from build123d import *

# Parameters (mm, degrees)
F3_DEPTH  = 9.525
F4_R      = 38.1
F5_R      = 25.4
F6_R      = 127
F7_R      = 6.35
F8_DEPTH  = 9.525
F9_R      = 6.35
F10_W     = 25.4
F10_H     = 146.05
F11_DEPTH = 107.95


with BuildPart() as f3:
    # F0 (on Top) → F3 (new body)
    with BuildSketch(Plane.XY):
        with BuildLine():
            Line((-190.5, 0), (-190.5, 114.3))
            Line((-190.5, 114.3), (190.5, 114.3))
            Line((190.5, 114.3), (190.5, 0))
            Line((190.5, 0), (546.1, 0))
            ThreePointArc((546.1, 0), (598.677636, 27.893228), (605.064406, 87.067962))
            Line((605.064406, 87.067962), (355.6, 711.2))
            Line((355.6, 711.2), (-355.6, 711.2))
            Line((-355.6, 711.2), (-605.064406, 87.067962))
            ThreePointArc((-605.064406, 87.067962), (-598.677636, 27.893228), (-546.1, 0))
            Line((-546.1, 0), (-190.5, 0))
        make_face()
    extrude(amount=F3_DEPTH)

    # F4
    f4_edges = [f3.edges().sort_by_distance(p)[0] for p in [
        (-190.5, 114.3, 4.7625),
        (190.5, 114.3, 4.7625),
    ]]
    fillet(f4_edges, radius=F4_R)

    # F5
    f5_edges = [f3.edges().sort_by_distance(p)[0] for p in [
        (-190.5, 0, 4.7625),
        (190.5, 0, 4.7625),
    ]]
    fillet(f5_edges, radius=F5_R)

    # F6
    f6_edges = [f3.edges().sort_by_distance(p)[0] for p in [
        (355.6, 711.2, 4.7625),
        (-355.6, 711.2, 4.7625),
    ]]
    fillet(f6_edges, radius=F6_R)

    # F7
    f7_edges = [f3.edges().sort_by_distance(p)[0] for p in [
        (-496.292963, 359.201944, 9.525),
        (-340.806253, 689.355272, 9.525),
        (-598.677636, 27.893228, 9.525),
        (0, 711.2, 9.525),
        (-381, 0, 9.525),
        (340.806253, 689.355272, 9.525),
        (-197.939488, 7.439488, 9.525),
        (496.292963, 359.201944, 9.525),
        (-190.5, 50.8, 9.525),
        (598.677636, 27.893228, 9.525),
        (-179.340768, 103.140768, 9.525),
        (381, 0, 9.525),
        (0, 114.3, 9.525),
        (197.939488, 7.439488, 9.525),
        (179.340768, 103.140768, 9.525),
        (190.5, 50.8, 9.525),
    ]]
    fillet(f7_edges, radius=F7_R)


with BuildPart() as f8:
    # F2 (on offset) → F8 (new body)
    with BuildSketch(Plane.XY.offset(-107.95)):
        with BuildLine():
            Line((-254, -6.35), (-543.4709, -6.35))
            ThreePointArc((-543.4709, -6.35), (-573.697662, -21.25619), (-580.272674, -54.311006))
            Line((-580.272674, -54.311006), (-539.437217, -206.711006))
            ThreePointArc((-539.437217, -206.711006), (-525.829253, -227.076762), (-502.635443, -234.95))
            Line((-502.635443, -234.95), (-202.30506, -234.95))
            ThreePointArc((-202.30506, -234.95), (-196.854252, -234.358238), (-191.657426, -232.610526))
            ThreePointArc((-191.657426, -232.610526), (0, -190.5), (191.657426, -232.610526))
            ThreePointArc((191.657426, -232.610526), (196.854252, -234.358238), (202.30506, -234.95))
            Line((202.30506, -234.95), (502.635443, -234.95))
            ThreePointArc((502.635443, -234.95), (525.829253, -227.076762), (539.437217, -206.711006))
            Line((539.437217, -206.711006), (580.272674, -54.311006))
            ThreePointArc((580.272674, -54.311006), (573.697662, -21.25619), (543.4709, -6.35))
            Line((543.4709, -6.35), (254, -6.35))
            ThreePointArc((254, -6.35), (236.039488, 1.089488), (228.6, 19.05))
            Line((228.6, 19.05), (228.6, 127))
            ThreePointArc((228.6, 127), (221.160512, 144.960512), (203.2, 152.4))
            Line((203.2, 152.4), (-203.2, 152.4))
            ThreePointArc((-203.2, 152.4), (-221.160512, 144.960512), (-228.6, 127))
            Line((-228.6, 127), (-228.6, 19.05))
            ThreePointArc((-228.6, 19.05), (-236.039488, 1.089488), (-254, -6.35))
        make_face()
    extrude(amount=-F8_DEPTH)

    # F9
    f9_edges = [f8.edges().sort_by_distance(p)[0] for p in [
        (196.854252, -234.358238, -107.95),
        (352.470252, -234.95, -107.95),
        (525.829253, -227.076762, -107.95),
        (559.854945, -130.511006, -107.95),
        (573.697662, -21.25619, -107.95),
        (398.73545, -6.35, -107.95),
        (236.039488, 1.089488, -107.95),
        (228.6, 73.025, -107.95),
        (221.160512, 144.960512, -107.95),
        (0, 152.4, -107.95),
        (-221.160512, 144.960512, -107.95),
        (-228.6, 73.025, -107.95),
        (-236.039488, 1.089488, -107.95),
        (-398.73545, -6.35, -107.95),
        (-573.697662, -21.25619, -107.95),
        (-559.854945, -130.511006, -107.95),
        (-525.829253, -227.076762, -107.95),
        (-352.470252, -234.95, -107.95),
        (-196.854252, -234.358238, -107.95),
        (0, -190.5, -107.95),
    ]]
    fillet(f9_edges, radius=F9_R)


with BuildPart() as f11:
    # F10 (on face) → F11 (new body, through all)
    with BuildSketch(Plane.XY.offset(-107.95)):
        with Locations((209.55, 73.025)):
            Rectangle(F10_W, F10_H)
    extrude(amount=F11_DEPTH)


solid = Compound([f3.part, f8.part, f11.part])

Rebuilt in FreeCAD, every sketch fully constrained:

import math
import FreeCAD as App
import Part
import Sketcher
Q = App.Units.Quantity


def edges_at(feature, points):
    """Names of the edges that pass closest to the given points."""
    edges = feature.Shape.Edges
    near = lambda p: min(range(len(edges)), key=lambda i: edges[i].distToShape(Part.Vertex(*p))[0])
    return sorted({f"Edge{near(p) + 1}" for p in points})

doc = App.newDocument("Part")
body = doc.addObject("PartDesign::Body", "Body")

# Sketch on XY plane
sketch1 = body.newObject("Sketcher::SketchObject", "Sketch")
sketch1.AttachmentSupport = (doc.getObject("XY_Plane"), [""])
sketch1.MapMode = "FlatFace"
sketch1.addGeometry(Part.LineSegment(App.Vector(-190.5, 0, 0), App.Vector(-190.5, 114.3, 0)), False)
sketch1.addGeometry(Part.LineSegment(App.Vector(-190.5, 114.3, 0), App.Vector(190.5, 114.3, 0)), False)
sketch1.addGeometry(Part.LineSegment(App.Vector(190.5, 114.3, 0), App.Vector(190.5, 0, 0)), False)
sketch1.addGeometry(Part.LineSegment(App.Vector(190.5, 0, 0), App.Vector(546.1, 0, 0)), False)
sketch1.addGeometry(Part.ArcOfCircle(Part.Circle(App.Vector(546.1, 63.5, 0), App.Vector(0, 0, 1), 63.5), math.radians(-90), math.radians(21.786497)), False)
sketch1.addGeometry(Part.LineSegment(App.Vector(605.064406, 87.067962, 0), App.Vector(355.6, 711.2, 0)), False)
sketch1.addGeometry(Part.LineSegment(App.Vector(355.6, 711.2, 0), App.Vector(-355.6, 711.2, 0)), False)
sketch1.addGeometry(Part.LineSegment(App.Vector(-355.6, 711.2, 0), App.Vector(-605.064406, 87.067962, 0)), False)
sketch1.addGeometry(Part.ArcOfCircle(Part.Circle(App.Vector(-546.1, 63.5, 0), App.Vector(0, 0, 1), 63.5), math.radians(158.213503), math.radians(270)), False)
sketch1.addGeometry(Part.LineSegment(App.Vector(-546.1, 0, 0), App.Vector(-190.5, 0, 0)), False)
sketch1.addConstraint(Sketcher.Constraint("Coincident", 0, 2, 1, 1))
sketch1.addConstraint(Sketcher.Constraint("Coincident", 1, 2, 2, 1))
sketch1.addConstraint(Sketcher.Constraint("Coincident", 2, 2, 3, 1))
sketch1.addConstraint(Sketcher.Constraint("Tangent", 3, 2, 4, 1))
sketch1.addConstraint(Sketcher.Constraint("Tangent", 4, 2, 5, 1))
sketch1.addConstraint(Sketcher.Constraint("Coincident", 5, 2, 6, 1))
sketch1.addConstraint(Sketcher.Constraint("Coincident", 6, 2, 7, 1))
sketch1.addConstraint(Sketcher.Constraint("Tangent", 7, 2, 8, 1))
sketch1.addConstraint(Sketcher.Constraint("Tangent", 8, 2, 9, 1))
sketch1.addConstraint(Sketcher.Constraint("Coincident", 9, 2, 0, 1))
sketch1.addConstraint(Sketcher.Constraint("Vertical", 0))
sketch1.addConstraint(Sketcher.Constraint("Horizontal", 1))
sketch1.addConstraint(Sketcher.Constraint("Vertical", 2))
sketch1.addConstraint(Sketcher.Constraint("Horizontal", 3))
sketch1.addConstraint(Sketcher.Constraint("Horizontal", 6))
sketch1.addConstraint(Sketcher.Constraint("Horizontal", 9))
sketch1.addConstraint(Sketcher.Constraint("Equal", 4, 8))
sketch1.addConstraint(Sketcher.Constraint("Symmetric", 3, 2, 8, 2, -1, 1))
sketch1.addConstraint(Sketcher.Constraint("Symmetric", 2, 2, 9, 2, -2))
sketch1.addConstraint(Sketcher.Constraint("Equal", 5, 7))
sketch1.addConstraint(Sketcher.Constraint("Radius", 4, Q("2.5 in")))
sketch1.addConstraint(Sketcher.Constraint("DistanceX", 1, 1, 1, 2, Q("15 in")))
sketch1.addConstraint(Sketcher.Constraint("DistanceX", 3, 1, 3, 2, Q("14 in")))
sketch1.addConstraint(Sketcher.Constraint("DistanceX", 6, 2, 6, 1, Q("28 in")))
sketch1.addConstraint(Sketcher.Constraint("DistanceY", 0, 1, 0, 2, Q("4.5 in")))
sketch1.addConstraint(Sketcher.Constraint("DistanceY", -1, 1, 5, 2, Q("28 in")))
pad1 = body.newObject("PartDesign::Pad", "Pad")
pad1.Profile = sketch1
pad1.Length = Q("0.375 in")
doc.recompute()

fillet = body.newObject("PartDesign::Fillet", "Fillet")
fillet.Base = (pad1, edges_at(pad1, [(-190.5, 114.3, 4.763), (190.5, 114.3, 4.763)]))
fillet.Radius = Q("1.5 in")
doc.recompute()

fillet2 = body.newObject("PartDesign::Fillet", "Fillet001")
fillet2.Base = (fillet, edges_at(fillet, [(-190.5, 0, 4.763), (190.5, 0, 4.763)]))
fillet2.Radius = Q("1 in")
doc.recompute()

fillet3 = body.newObject("PartDesign::Fillet", "Fillet002")
fillet3.Base = (fillet2, edges_at(fillet2, [(355.6, 711.2, 4.763), (-355.6, 711.2, 4.763)]))
fillet3.Radius = Q("5 in")
doc.recompute()

fillet4 = body.newObject("PartDesign::Fillet", "Fillet003")
fillet4.Base = (fillet3, edges_at(fillet3, [
    (-496.293, 359.202, 9.525),
    (-340.806, 689.355, 9.525),
    (-598.678, 27.893, 9.525),
    (0, 711.2, 9.525),
    (-381, 0, 9.525),
    (340.806, 689.355, 9.525),
    (-197.939, 7.439, 9.525),
    (496.293, 359.202, 9.525),
    (-190.5, 50.8, 9.525),
    (598.678, 27.893, 9.525),
    (-179.341, 103.141, 9.525),
    (381, 0, 9.525),
    (0, 114.3, 9.525),
    (197.939, 7.439, 9.525),
    (179.341, 103.141, 9.525),
    (190.5, 50.8, 9.525),
]))
fillet4.Radius = Q("0.25 in")
body2 = doc.addObject("PartDesign::Body", "Body001")

# Sketch on XY plane
sketch2 = body2.newObject("Sketcher::SketchObject", "Sketch001")
sketch2.AttachmentSupport = (doc.getObject("XY_Plane001"), [""])
sketch2.MapMode = "FlatFace"
sketch2.AttachmentOffset = App.Placement(App.Vector(0, 0, -4.25 * 25.4), App.Rotation())
sketch2.addGeometry(Part.LineSegment(App.Vector(-254, -6.35, 0), App.Vector(-543.4709, -6.35, 0)), False)
sketch2.addGeometry(Part.ArcOfCircle(Part.Circle(App.Vector(-543.470899, -44.450001, 0), App.Vector(0, 0, 1), 38.100001), math.radians(90.000002), math.radians(194.999999)), False)
sketch2.addGeometry(Part.LineSegment(App.Vector(-580.272674, -54.311006, 0), App.Vector(-539.437217, -206.711006, 0)), False)
sketch2.addGeometry(Part.ArcOfCircle(Part.Circle(App.Vector(-502.635441, -196.849998, 0), App.Vector(0, 0, 1), 38.100002), math.radians(-164.999997), math.radians(-90.000002)), False)
sketch2.addGeometry(Part.LineSegment(App.Vector(-502.635443, -234.95, 0), App.Vector(-202.30506, -234.95, 0)), False)
sketch2.addGeometry(Part.ArcOfCircle(Part.Circle(App.Vector(-202.305062, -209.549997, 0), App.Vector(0, 0, 1), 25.400003), math.radians(-89.999995), math.radians(-65.216022)), False)
sketch2.addGeometry(Part.ArcOfCircle(Part.Circle(App.Vector(0, -647.700004, 0), App.Vector(0, 0, 1), 457.200004), math.radians(65.216022), math.radians(114.783978)), False)
sketch2.addGeometry(Part.ArcOfCircle(Part.Circle(App.Vector(202.305062, -209.549997, 0), App.Vector(0, 0, 1), 25.400003), math.radians(-114.783978), math.radians(-90.000005)), False)
sketch2.addGeometry(Part.LineSegment(App.Vector(202.30506, -234.95, 0), App.Vector(502.635443, -234.95, 0)), False)
sketch2.addGeometry(Part.ArcOfCircle(Part.Circle(App.Vector(502.635441, -196.849998, 0), App.Vector(0, 0, 1), 38.100002), math.radians(-89.999998), math.radians(-15.000003)), False)
sketch2.addGeometry(Part.LineSegment(App.Vector(539.437217, -206.711006, 0), App.Vector(580.272674, -54.311006, 0)), False)
sketch2.addGeometry(Part.ArcOfCircle(Part.Circle(App.Vector(543.470899, -44.450001, 0), App.Vector(0, 0, 1), 38.100001), math.radians(-14.999999), math.radians(89.999998)), False)
sketch2.addGeometry(Part.LineSegment(App.Vector(543.4709, -6.35, 0), App.Vector(254, -6.35, 0)), False)
sketch2.addGeometry(Part.ArcOfCircle(Part.Circle(App.Vector(254.000001, 19.050001, 0), App.Vector(0, 0, 1), 25.400001), math.radians(-179.999998), math.radians(-90.000002)), False)
sketch2.addGeometry(Part.LineSegment(App.Vector(228.6, 19.05, 0), App.Vector(228.6, 127, 0)), False)
sketch2.addGeometry(Part.ArcOfCircle(Part.Circle(App.Vector(203.199999, 126.999999, 0), App.Vector(0, 0, 1), 25.400001), math.radians(0.000002), math.radians(89.999998)), False)
sketch2.addGeometry(Part.LineSegment(App.Vector(203.2, 152.4, 0), App.Vector(-203.2, 152.4, 0)), False)
sketch2.addGeometry(Part.ArcOfCircle(Part.Circle(App.Vector(-203.199999, 126.999999, 0), App.Vector(0, 0, 1), 25.400001), math.radians(90.000002), math.radians(179.999998)), False)
sketch2.addGeometry(Part.LineSegment(App.Vector(-228.6, 127, 0), App.Vector(-228.6, 19.05, 0)), False)
sketch2.addGeometry(Part.ArcOfCircle(Part.Circle(App.Vector(-254.000001, 19.050001, 0), App.Vector(0, 0, 1), 25.400001), math.radians(-89.999998), math.radians(-0.000002)), False)
sketch2.addConstraint(Sketcher.Constraint("Tangent", 0, 2, 1, 1))
sketch2.addConstraint(Sketcher.Constraint("Tangent", 1, 2, 2, 1))
sketch2.addConstraint(Sketcher.Constraint("Tangent", 2, 2, 3, 1))
sketch2.addConstraint(Sketcher.Constraint("Tangent", 3, 2, 4, 1))
sketch2.addConstraint(Sketcher.Constraint("Tangent", 4, 2, 5, 1))
sketch2.addConstraint(Sketcher.Constraint("Tangent", 5, 2, 6, 2))
sketch2.addConstraint(Sketcher.Constraint("Tangent", 6, 1, 7, 1))
sketch2.addConstraint(Sketcher.Constraint("Tangent", 7, 2, 8, 1))
sketch2.addConstraint(Sketcher.Constraint("Tangent", 8, 2, 9, 1))
sketch2.addConstraint(Sketcher.Constraint("Tangent", 9, 2, 10, 1))
sketch2.addConstraint(Sketcher.Constraint("Tangent", 10, 2, 11, 1))
sketch2.addConstraint(Sketcher.Constraint("Tangent", 11, 2, 12, 1))
sketch2.addConstraint(Sketcher.Constraint("Tangent", 12, 2, 13, 2))
sketch2.addConstraint(Sketcher.Constraint("Tangent", 13, 1, 14, 1))
sketch2.addConstraint(Sketcher.Constraint("Tangent", 14, 2, 15, 1))
sketch2.addConstraint(Sketcher.Constraint("Tangent", 15, 2, 16, 1))
sketch2.addConstraint(Sketcher.Constraint("Tangent", 16, 2, 17, 1))
sketch2.addConstraint(Sketcher.Constraint("Tangent", 17, 2, 18, 1))
sketch2.addConstraint(Sketcher.Constraint("Tangent", 18, 2, 19, 2))
sketch2.addConstraint(Sketcher.Constraint("Tangent", 19, 1, 0, 1))
sketch2.addConstraint(Sketcher.Constraint("Horizontal", 0))
sketch2.addConstraint(Sketcher.Constraint("Horizontal", 4))
sketch2.addConstraint(Sketcher.Constraint("Horizontal", 8))
sketch2.addConstraint(Sketcher.Constraint("Horizontal", 12))
sketch2.addConstraint(Sketcher.Constraint("Vertical", 14))
sketch2.addConstraint(Sketcher.Constraint("Horizontal", 16))
sketch2.addConstraint(Sketcher.Constraint("Vertical", 18))
sketch2.addConstraint(Sketcher.Constraint("Equal", 1, 3))
sketch2.addConstraint(Sketcher.Constraint("Equal", 5, 7))
sketch2.addConstraint(Sketcher.Constraint("Equal", 3, 9))
sketch2.addConstraint(Sketcher.Constraint("Equal", 9, 11))
sketch2.addConstraint(Sketcher.Constraint("Equal", 13, 15))
sketch2.addConstraint(Sketcher.Constraint("Equal", 15, 17))
sketch2.addConstraint(Sketcher.Constraint("Equal", 17, 19))
sketch2.addConstraint(Sketcher.Constraint("Symmetric", 5, 3, 7, 3, -2))
sketch2.addConstraint(Sketcher.Constraint("Symmetric", 1, 3, 11, 3, -2))
sketch2.addConstraint(Sketcher.Constraint("Horizontal", 2, 2, 9, 2))
sketch2.addConstraint(Sketcher.Constraint("Equal", 0, 12))
sketch2.addConstraint(Sketcher.Constraint("Radius", 5, Q("1.0000001 in")))
sketch2.addConstraint(Sketcher.Constraint("Radius", 6, Q("18.0000002 in")))
sketch2.addConstraint(Sketcher.Constraint("Radius", 13, Q("1 in")))
sketch2.addConstraint(Sketcher.Constraint("Radius", 1, Q("1.5 in")))
sketch2.addConstraint(Sketcher.Constraint("DistanceX", 16, 2, 16, 1, Q("16 in")))
sketch2.addConstraint(Sketcher.Constraint("DistanceY", -1, 1, 15, 3, Q("5 in")))
sketch2.addConstraint(Sketcher.Constraint("Angle", 2, Q("-75 deg")))
sketch2.addConstraint(Sketcher.Constraint("DistanceY", 3, 3, 1, 3, Q("5.9999999 in")))
sketch2.addConstraint(Sketcher.Constraint("DistanceY", 14, 1, 14, 2, Q("4.25 in")))
sketch2.addConstraint(Sketcher.Constraint("DistanceY", 6, 3, -1, 1, Q("25.5000002 in")))
sketch2.addConstraint(Sketcher.Constraint("DistanceX", 0, 2, 0, 1, 289.4709))
pad2 = body2.newObject("PartDesign::Pad", "Pad001")
pad2.Profile = sketch2
pad2.Length = Q("0.375 in")
pad2.Reversed = True
doc.recompute()

fillet5 = body2.newObject("PartDesign::Fillet", "Fillet004")
fillet5.Base = (pad2, edges_at(pad2, [
    (196.854, -234.358, -107.95),
    (352.47, -234.95, -107.95),
    (525.829, -227.077, -107.95),
    (559.855, -130.511, -107.95),
    (573.698, -21.256, -107.95),
    (398.735, -6.35, -107.95),
    (236.039, 1.089, -107.95),
    (228.6, 73.025, -107.95),
    (221.161, 144.961, -107.95),
    (0, 152.4, -107.95),
    (-221.161, 144.961, -107.95),
    (-228.6, 73.025, -107.95),
    (-236.039, 1.089, -107.95),
    (-398.735, -6.35, -107.95),
    (-573.698, -21.256, -107.95),
    (-559.855, -130.511, -107.95),
    (-525.829, -227.077, -107.95),
    (-352.47, -234.95, -107.95),
    (-196.854, -234.358, -107.95),
    (0, -190.5, -107.95),
]))
fillet5.Radius = Q("0.25 in")
body3 = doc.addObject("PartDesign::Body", "Body002")

# Sketch on XY plane
sketch3 = body3.newObject("Sketcher::SketchObject", "Sketch002")
sketch3.AttachmentSupport = (doc.getObject("XY_Plane002"), [""])
sketch3.MapMode = "FlatFace"
sketch3.AttachmentOffset = App.Placement(App.Vector(0, 0, -4.25 * 25.4), App.Rotation())
sketch3.addGeometry(Part.LineSegment(App.Vector(196.85, 146.05, 0), App.Vector(196.85, 0, 0)), False)
sketch3.addGeometry(Part.LineSegment(App.Vector(196.85, 0, 0), App.Vector(222.25, 0, 0)), False)
sketch3.addGeometry(Part.LineSegment(App.Vector(222.25, 0, 0), App.Vector(222.25, 146.05, 0)), False)
sketch3.addGeometry(Part.LineSegment(App.Vector(222.25, 146.05, 0), App.Vector(196.85, 146.05, 0)), False)
sketch3.addConstraint(Sketcher.Constraint("Coincident", 0, 2, 1, 1))
sketch3.addConstraint(Sketcher.Constraint("Coincident", 1, 2, 2, 1))
sketch3.addConstraint(Sketcher.Constraint("Coincident", 2, 2, 3, 1))
sketch3.addConstraint(Sketcher.Constraint("Coincident", 3, 2, 0, 1))
sketch3.addConstraint(Sketcher.Constraint("Vertical", 0))
sketch3.addConstraint(Sketcher.Constraint("Horizontal", 1))
sketch3.addConstraint(Sketcher.Constraint("Vertical", 2))
sketch3.addConstraint(Sketcher.Constraint("Horizontal", 3))
sketch3.addConstraint(Sketcher.Constraint("PointOnObject", 0, 2, -1))
sketch3.addConstraint(Sketcher.Constraint("DistanceX", 1, 1, 1, 2, Q("1 in")))
sketch3.addConstraint(Sketcher.Constraint("DistanceY", 0, 2, 0, 1, Q("5.75 in")))
sketch3.addConstraint(Sketcher.Constraint("DistanceX", -1, 1, 0, 2, Q("7.75 in")))
pad3 = body3.newObject("PartDesign::Pad", "Pad002")
pad3.Profile = sketch3
pad3.Length = Q("4.25 in")

doc.recompute()
